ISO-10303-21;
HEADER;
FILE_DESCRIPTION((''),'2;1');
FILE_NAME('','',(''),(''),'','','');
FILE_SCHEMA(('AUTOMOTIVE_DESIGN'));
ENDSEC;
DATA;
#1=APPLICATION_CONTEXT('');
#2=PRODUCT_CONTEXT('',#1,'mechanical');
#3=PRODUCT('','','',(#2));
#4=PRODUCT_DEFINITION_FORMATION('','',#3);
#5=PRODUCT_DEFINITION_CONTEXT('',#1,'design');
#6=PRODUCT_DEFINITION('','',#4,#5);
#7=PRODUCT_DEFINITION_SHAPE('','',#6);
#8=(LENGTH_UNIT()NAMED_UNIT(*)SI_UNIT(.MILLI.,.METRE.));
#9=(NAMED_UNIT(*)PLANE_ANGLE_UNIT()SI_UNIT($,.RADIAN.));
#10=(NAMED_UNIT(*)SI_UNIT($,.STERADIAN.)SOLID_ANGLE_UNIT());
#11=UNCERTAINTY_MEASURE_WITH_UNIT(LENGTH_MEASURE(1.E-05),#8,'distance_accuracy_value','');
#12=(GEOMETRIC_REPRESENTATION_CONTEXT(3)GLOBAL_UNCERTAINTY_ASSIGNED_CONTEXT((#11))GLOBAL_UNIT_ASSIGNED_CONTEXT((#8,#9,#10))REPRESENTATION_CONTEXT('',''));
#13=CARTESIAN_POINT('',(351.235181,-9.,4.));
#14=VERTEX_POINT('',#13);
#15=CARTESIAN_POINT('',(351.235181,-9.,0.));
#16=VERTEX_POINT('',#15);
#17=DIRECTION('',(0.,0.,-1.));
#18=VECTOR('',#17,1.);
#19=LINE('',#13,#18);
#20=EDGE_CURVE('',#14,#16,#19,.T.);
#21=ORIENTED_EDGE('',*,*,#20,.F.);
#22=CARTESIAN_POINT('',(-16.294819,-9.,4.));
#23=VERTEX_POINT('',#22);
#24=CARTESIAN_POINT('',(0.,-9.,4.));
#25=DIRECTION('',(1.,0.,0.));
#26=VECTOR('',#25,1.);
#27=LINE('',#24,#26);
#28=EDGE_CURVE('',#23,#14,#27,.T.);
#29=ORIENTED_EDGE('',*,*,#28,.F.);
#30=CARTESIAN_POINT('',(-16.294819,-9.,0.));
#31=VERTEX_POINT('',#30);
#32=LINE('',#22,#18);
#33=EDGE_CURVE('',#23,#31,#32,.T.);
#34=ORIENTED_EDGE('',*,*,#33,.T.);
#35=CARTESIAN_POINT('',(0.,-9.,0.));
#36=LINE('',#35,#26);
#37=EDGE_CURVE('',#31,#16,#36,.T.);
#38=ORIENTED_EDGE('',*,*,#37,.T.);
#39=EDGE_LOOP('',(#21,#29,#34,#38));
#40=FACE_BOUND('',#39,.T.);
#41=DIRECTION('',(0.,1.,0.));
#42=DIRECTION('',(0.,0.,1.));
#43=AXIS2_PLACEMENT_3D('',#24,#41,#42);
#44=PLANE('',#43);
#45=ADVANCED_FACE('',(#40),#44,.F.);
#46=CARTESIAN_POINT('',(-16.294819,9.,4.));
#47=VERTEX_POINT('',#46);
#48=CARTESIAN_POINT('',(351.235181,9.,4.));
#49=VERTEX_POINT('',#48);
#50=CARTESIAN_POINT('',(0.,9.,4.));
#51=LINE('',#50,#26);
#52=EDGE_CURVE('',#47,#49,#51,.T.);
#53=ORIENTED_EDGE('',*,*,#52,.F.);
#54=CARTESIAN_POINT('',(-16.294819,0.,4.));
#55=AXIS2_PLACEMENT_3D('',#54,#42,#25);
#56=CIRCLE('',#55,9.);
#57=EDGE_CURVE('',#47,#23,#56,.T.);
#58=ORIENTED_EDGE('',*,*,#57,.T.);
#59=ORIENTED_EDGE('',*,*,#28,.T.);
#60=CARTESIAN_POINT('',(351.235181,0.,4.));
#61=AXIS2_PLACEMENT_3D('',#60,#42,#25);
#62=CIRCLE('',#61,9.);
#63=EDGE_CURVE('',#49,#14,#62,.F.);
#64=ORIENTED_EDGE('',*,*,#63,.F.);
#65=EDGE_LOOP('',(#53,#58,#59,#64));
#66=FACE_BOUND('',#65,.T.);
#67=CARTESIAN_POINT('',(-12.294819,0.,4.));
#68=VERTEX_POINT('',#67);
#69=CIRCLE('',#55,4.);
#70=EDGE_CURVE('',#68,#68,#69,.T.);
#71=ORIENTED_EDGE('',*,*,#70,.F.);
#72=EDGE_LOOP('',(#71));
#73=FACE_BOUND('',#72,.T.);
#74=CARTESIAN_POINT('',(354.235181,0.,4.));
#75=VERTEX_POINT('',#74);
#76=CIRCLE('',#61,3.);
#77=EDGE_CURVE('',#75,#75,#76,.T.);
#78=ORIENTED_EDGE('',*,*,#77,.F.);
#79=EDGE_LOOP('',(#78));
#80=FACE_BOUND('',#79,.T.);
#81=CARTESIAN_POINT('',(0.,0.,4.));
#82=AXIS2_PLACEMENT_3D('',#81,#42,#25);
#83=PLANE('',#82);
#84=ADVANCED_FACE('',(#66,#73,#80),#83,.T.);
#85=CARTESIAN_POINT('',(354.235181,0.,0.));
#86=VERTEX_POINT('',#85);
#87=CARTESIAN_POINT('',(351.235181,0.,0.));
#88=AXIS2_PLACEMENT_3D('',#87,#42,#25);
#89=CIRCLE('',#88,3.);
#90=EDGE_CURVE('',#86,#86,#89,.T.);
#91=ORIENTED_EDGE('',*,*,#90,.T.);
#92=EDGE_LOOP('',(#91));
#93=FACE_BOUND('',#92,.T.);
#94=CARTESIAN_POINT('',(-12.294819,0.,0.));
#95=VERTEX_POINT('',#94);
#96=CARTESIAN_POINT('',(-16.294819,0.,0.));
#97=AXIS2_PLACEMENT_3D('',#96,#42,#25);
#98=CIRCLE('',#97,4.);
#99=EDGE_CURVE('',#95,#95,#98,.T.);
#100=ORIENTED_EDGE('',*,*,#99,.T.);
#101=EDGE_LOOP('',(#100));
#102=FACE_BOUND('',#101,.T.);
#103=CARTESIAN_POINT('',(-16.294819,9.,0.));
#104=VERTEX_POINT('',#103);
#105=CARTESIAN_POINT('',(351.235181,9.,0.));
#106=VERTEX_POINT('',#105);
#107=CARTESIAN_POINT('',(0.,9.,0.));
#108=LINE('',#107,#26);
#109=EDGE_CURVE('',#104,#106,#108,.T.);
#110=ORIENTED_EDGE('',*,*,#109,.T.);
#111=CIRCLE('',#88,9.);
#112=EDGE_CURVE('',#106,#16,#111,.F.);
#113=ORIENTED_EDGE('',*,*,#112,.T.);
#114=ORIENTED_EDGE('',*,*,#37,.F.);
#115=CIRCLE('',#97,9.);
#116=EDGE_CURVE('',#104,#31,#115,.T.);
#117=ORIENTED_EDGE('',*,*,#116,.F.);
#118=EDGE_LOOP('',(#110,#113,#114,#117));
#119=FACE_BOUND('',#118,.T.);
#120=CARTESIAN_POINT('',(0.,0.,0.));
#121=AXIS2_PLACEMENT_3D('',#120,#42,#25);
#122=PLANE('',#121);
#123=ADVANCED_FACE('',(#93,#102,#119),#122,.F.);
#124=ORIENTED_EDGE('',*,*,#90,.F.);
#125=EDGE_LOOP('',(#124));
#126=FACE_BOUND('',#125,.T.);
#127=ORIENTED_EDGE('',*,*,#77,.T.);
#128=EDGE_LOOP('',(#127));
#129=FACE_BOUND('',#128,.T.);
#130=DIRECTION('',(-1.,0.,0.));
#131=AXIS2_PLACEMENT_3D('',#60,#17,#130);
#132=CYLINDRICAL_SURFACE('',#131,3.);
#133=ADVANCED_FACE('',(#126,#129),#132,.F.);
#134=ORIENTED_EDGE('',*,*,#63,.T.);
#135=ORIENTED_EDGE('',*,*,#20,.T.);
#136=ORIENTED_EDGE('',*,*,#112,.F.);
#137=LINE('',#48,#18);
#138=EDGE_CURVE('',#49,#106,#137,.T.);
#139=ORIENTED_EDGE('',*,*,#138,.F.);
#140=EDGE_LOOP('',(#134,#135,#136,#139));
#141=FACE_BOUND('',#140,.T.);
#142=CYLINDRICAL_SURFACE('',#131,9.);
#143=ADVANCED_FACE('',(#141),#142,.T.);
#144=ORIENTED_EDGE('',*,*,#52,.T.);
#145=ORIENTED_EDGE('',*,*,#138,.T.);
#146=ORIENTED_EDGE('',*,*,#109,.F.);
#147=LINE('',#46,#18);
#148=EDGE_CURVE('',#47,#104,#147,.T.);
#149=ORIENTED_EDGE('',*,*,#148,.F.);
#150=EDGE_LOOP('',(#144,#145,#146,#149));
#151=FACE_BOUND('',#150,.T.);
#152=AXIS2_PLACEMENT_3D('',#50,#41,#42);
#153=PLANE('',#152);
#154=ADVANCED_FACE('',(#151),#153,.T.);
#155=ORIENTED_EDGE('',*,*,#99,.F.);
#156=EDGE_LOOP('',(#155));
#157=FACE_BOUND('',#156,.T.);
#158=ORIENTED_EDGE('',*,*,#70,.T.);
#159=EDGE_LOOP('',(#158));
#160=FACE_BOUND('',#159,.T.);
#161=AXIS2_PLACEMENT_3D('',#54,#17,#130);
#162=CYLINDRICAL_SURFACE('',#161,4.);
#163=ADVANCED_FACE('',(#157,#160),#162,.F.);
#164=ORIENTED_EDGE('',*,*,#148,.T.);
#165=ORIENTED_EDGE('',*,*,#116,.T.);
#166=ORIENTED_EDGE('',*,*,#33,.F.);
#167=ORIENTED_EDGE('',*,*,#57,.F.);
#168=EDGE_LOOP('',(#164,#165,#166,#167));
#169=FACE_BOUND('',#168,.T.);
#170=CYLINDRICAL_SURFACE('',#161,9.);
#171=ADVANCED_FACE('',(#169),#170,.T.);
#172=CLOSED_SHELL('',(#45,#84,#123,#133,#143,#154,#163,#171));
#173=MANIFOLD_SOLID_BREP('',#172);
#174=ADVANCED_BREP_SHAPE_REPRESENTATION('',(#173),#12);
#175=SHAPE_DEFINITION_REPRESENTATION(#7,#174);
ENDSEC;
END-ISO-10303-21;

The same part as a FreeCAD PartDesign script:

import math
import FreeCAD as App
import Part
import Sketcher

V = App.Vector
Q = App.Units.Quantity

doc = App.newDocument("Part")
params = doc.addObject("Spreadsheet::Sheet", "Params")
for row, (alias, value) in enumerate([
    ("sketch1_diameter", "6 mm"),
    ("sketch1_diameter2", "8 mm"),
    ("sketch1_radius", "9 mm"),
    ("sketch1_width", "367.53 mm"),
    ("pad1_length", "4 mm"),
], start=1):
    params.set(f"A{row}", alias)
    params.set(f"B{row}", "=" + value)
    params.setAlias(f"B{row}", alias)

body = doc.addObject("PartDesign::Body", "Body")

# Sketch on XY plane
sketch1 = doc.addObject("Sketcher::SketchObject", "Sketch")
body.addObject(sketch1)
sketch1.AttachmentSupport = (doc.XY_Plane, [""])
sketch1.MapMode = "FlatFace"
sketch1.addGeometry(Part.LineSegment(V(351.2, 9, 0), V(-16.3, 9, 0)), False)
sketch1.addGeometry(Part.ArcOfCircle(Part.Circle(V(-16.3, 0, 0), V(0, 0, 1), 9), math.radians(90), math.radians(270)), False)
sketch1.addGeometry(Part.LineSegment(V(-16.3, -9, 0), V(351.2, -9, 0)), False)
sketch1.addGeometry(Part.ArcOfCircle(Part.Circle(V(351.2, 0, 0), V(0, 0, 1), 9), math.radians(-90), math.radians(90)), False)
sketch1.addGeometry(Part.Circle(V(351.2, 0, 0), V(0, 0, 1), 3), False)
sketch1.addGeometry(Part.Circle(V(-16.3, 0, 0), V(0, 0, 1), 4), False)
sketch1.addConstraint(Sketcher.Constraint("Tangent", 0, 2, 1, 1))
sketch1.addConstraint(Sketcher.Constraint("Tangent", 1, 2, 2, 1))
sketch1.addConstraint(Sketcher.Constraint("Tangent", 2, 2, 3, 1))
sketch1.addConstraint(Sketcher.Constraint("Tangent", 3, 2, 0, 1))
sketch1.addConstraint(Sketcher.Constraint("Horizontal", 0))
sketch1.addConstraint(Sketcher.Constraint("Horizontal", 2))
sketch1.addConstraint(Sketcher.Constraint("Coincident", 4, 3, 3, 3))
sketch1.addConstraint(Sketcher.Constraint("Coincident", 5, 3, 1, 3))
sketch1.addConstraint(Sketcher.Constraint("PointOnObject", 1, 3, -1))
sketch1.addConstraint(Sketcher.Constraint("Diameter", 4, Q("6 mm")))
sketch1.addConstraint(Sketcher.Constraint("Diameter", 5, Q("8 mm")))
sketch1.addConstraint(Sketcher.Constraint("Radius", 1, Q("9 mm")))
sketch1.addConstraint(Sketcher.Constraint("DistanceX", 0, 2, 0, 1, Q("367.53 mm")))
sketch1.addConstraint(Sketcher.Constraint("DistanceX", 1, 3, -1, 1, Q("16.294819 mm")))
sketch1.setExpression("Constraints[9]", "Params.sketch1_diameter")
sketch1.setExpression("Constraints[10]", "Params.sketch1_diameter2")
sketch1.setExpression("Constraints[11]", "Params.sketch1_radius")
sketch1.setExpression("Constraints[12]", "Params.sketch1_width")
pad1 = doc.addObject("PartDesign::Pad", "Pad")
body.addObject(pad1)
pad1.Profile = sketch1
pad1.setExpression("Length", "Params.pad1_length")

doc.recompute()
